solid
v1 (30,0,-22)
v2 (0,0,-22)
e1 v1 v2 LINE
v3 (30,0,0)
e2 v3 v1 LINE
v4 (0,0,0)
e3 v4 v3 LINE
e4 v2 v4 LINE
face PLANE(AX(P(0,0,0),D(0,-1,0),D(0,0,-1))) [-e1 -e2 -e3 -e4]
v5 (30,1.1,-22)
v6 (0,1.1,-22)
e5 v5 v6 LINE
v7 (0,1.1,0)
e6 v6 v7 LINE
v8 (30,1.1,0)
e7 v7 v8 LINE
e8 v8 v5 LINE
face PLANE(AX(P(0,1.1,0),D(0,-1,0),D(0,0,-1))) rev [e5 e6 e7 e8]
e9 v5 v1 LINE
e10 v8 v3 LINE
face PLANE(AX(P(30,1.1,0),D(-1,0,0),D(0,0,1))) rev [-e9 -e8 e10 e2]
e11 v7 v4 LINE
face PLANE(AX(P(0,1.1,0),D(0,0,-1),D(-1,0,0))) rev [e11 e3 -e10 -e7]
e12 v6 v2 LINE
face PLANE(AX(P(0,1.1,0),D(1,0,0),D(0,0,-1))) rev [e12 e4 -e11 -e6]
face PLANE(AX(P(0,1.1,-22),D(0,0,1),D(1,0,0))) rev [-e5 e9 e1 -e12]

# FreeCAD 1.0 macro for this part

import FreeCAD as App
import Part
import Sketcher

doc = App.newDocument("Part")
params = doc.addObject("Spreadsheet::Sheet", "Params")
for row, (alias, value) in enumerate([
    ("sketch1_width", "30 mm"),
    ("sketch1_height", "22 mm"),
    ("pad1_length", "1.1 mm"),
], start=1):
    params.set(f"A{row}", alias)
    params.set(f"B{row}", "=" + value)
    params.setAlias(f"B{row}", alias)

body = doc.addObject("PartDesign::Body", "Body")

# Sketch on XZ plane
sketch1 = body.newObject("Sketcher::SketchObject", "Sketch")
sketch1.AttachmentSupport = (doc.getObject("XZ_Plane"), [""])
sketch1.MapMode = "FlatFace"
sketch1.addGeometry(Part.LineSegment(App.Vector(0, -22, 0), App.Vector(0, 0, 0)), False)
sketch1.addGeometry(Part.LineSegment(App.Vector(0, 0, 0), App.Vector(30, 0, 0)), False)
sketch1.addGeometry(Part.LineSegment(App.Vector(30, 0, 0), App.Vector(30, -22, 0)), False)
sketch1.addGeometry(Part.LineSegment(App.Vector(30, -22, 0), App.Vector(0, -22, 0)), False)
sketch1.addConstraint(Sketcher.Constraint("Coincident", 0, 2, 1, 1))
sketch1.addConstraint(Sketcher.Constraint("Coincident", 1, 2, 2, 1))
sketch1.addConstraint(Sketcher.Constraint("Coincident", 2, 2, 3, 1))
sketch1.addConstraint(Sketcher.Constraint("Coincident", 3, 2, 0, 1))
sketch1.addConstraint(Sketcher.Constraint("Vertical", 0))
sketch1.addConstraint(Sketcher.Constraint("Horizontal", 1))
sketch1.addConstraint(Sketcher.Constraint("Vertical", 2))
sketch1.addConstraint(Sketcher.Constraint("Horizontal", 3))
sketch1.addConstraint(Sketcher.Constraint("Coincident", 0, 2, -1, 1))
sketch1.addConstraint(Sketcher.Constraint("DistanceX", 1, 1, 1, 2, 30.0))
sketch1.addConstraint(Sketcher.Constraint("DistanceY", 0, 1, 0, 2, 22.0))
sketch1.setExpression("Constraints[9]", "Params.sketch1_width")
sketch1.setExpression("Constraints[10]", "Params.sketch1_height")
pad1 = body.newObject("PartDesign::Pad", "Pad")
pad1.Profile = sketch1
pad1.setExpression("Length", "Params.pad1_length")
pad1.Reversed = True

doc.recompute()
